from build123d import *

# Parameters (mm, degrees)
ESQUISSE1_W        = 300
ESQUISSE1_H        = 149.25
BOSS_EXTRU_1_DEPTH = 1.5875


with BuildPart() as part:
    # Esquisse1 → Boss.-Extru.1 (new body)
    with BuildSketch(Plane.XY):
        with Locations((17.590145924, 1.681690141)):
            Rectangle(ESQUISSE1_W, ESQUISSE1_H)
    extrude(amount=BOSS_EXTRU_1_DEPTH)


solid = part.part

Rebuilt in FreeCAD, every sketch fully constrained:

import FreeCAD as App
import Part
import Sketcher

doc = App.newDocument("Part")
body = doc.addObject("PartDesign::Body", "Body")

sketch1 = body.newObject("Sketcher::SketchObject", "Sketch")
sketch1.AttachmentSupport = (doc.getObject("XY_Plane"), [""])
sketch1.MapMode = "FlatFace"
sketch1.addGeometry([
    Part.LineSegment(App.Vector(-132, 76, 0), App.Vector(-132, -73, 0)),
    Part.LineSegment(App.Vector(-132, -73, 0), App.Vector(168, -73, 0)),
    Part.LineSegment(App.Vector(168, -73, 0), App.Vector(168, 76, 0)),
    Part.LineSegment(App.Vector(168, 76, 0), App.Vector(-132, 76, 0)),
], False)
sketch1.addConstraint([
    Sketcher.Constraint("Coincident", 0, 2, 1, 1),
    Sketcher.Constraint("Coincident", 1, 2, 2, 1),
    Sketcher.Constraint("Coincident", 2, 2, 3, 1),
    Sketcher.Constraint("Coincident", 3, 2, 0, 1),
    Sketcher.Constraint("Vertical", 0),
    Sketcher.Constraint("Horizontal", 1),
    Sketcher.Constraint("Vertical", 2),
    Sketcher.Constraint("Horizontal", 3),
    Sketcher.Constraint("DistanceX", 1, 1, 1, 2, 300.0),
    Sketcher.Constraint("DistanceY", 0, 2, 0, 1, 149.25),
    Sketcher.Constraint("DistanceY", 0, 2, -1, 1, 72.94331),
    Sketcher.Constraint("DistanceX", 0, 2, -1, 1, 132.409854),
])
pad1 = body.newObject("PartDesign::Pad", "Pad")
pad1.Profile = sketch1
pad1.Length = 1.5875

doc.recompute()
